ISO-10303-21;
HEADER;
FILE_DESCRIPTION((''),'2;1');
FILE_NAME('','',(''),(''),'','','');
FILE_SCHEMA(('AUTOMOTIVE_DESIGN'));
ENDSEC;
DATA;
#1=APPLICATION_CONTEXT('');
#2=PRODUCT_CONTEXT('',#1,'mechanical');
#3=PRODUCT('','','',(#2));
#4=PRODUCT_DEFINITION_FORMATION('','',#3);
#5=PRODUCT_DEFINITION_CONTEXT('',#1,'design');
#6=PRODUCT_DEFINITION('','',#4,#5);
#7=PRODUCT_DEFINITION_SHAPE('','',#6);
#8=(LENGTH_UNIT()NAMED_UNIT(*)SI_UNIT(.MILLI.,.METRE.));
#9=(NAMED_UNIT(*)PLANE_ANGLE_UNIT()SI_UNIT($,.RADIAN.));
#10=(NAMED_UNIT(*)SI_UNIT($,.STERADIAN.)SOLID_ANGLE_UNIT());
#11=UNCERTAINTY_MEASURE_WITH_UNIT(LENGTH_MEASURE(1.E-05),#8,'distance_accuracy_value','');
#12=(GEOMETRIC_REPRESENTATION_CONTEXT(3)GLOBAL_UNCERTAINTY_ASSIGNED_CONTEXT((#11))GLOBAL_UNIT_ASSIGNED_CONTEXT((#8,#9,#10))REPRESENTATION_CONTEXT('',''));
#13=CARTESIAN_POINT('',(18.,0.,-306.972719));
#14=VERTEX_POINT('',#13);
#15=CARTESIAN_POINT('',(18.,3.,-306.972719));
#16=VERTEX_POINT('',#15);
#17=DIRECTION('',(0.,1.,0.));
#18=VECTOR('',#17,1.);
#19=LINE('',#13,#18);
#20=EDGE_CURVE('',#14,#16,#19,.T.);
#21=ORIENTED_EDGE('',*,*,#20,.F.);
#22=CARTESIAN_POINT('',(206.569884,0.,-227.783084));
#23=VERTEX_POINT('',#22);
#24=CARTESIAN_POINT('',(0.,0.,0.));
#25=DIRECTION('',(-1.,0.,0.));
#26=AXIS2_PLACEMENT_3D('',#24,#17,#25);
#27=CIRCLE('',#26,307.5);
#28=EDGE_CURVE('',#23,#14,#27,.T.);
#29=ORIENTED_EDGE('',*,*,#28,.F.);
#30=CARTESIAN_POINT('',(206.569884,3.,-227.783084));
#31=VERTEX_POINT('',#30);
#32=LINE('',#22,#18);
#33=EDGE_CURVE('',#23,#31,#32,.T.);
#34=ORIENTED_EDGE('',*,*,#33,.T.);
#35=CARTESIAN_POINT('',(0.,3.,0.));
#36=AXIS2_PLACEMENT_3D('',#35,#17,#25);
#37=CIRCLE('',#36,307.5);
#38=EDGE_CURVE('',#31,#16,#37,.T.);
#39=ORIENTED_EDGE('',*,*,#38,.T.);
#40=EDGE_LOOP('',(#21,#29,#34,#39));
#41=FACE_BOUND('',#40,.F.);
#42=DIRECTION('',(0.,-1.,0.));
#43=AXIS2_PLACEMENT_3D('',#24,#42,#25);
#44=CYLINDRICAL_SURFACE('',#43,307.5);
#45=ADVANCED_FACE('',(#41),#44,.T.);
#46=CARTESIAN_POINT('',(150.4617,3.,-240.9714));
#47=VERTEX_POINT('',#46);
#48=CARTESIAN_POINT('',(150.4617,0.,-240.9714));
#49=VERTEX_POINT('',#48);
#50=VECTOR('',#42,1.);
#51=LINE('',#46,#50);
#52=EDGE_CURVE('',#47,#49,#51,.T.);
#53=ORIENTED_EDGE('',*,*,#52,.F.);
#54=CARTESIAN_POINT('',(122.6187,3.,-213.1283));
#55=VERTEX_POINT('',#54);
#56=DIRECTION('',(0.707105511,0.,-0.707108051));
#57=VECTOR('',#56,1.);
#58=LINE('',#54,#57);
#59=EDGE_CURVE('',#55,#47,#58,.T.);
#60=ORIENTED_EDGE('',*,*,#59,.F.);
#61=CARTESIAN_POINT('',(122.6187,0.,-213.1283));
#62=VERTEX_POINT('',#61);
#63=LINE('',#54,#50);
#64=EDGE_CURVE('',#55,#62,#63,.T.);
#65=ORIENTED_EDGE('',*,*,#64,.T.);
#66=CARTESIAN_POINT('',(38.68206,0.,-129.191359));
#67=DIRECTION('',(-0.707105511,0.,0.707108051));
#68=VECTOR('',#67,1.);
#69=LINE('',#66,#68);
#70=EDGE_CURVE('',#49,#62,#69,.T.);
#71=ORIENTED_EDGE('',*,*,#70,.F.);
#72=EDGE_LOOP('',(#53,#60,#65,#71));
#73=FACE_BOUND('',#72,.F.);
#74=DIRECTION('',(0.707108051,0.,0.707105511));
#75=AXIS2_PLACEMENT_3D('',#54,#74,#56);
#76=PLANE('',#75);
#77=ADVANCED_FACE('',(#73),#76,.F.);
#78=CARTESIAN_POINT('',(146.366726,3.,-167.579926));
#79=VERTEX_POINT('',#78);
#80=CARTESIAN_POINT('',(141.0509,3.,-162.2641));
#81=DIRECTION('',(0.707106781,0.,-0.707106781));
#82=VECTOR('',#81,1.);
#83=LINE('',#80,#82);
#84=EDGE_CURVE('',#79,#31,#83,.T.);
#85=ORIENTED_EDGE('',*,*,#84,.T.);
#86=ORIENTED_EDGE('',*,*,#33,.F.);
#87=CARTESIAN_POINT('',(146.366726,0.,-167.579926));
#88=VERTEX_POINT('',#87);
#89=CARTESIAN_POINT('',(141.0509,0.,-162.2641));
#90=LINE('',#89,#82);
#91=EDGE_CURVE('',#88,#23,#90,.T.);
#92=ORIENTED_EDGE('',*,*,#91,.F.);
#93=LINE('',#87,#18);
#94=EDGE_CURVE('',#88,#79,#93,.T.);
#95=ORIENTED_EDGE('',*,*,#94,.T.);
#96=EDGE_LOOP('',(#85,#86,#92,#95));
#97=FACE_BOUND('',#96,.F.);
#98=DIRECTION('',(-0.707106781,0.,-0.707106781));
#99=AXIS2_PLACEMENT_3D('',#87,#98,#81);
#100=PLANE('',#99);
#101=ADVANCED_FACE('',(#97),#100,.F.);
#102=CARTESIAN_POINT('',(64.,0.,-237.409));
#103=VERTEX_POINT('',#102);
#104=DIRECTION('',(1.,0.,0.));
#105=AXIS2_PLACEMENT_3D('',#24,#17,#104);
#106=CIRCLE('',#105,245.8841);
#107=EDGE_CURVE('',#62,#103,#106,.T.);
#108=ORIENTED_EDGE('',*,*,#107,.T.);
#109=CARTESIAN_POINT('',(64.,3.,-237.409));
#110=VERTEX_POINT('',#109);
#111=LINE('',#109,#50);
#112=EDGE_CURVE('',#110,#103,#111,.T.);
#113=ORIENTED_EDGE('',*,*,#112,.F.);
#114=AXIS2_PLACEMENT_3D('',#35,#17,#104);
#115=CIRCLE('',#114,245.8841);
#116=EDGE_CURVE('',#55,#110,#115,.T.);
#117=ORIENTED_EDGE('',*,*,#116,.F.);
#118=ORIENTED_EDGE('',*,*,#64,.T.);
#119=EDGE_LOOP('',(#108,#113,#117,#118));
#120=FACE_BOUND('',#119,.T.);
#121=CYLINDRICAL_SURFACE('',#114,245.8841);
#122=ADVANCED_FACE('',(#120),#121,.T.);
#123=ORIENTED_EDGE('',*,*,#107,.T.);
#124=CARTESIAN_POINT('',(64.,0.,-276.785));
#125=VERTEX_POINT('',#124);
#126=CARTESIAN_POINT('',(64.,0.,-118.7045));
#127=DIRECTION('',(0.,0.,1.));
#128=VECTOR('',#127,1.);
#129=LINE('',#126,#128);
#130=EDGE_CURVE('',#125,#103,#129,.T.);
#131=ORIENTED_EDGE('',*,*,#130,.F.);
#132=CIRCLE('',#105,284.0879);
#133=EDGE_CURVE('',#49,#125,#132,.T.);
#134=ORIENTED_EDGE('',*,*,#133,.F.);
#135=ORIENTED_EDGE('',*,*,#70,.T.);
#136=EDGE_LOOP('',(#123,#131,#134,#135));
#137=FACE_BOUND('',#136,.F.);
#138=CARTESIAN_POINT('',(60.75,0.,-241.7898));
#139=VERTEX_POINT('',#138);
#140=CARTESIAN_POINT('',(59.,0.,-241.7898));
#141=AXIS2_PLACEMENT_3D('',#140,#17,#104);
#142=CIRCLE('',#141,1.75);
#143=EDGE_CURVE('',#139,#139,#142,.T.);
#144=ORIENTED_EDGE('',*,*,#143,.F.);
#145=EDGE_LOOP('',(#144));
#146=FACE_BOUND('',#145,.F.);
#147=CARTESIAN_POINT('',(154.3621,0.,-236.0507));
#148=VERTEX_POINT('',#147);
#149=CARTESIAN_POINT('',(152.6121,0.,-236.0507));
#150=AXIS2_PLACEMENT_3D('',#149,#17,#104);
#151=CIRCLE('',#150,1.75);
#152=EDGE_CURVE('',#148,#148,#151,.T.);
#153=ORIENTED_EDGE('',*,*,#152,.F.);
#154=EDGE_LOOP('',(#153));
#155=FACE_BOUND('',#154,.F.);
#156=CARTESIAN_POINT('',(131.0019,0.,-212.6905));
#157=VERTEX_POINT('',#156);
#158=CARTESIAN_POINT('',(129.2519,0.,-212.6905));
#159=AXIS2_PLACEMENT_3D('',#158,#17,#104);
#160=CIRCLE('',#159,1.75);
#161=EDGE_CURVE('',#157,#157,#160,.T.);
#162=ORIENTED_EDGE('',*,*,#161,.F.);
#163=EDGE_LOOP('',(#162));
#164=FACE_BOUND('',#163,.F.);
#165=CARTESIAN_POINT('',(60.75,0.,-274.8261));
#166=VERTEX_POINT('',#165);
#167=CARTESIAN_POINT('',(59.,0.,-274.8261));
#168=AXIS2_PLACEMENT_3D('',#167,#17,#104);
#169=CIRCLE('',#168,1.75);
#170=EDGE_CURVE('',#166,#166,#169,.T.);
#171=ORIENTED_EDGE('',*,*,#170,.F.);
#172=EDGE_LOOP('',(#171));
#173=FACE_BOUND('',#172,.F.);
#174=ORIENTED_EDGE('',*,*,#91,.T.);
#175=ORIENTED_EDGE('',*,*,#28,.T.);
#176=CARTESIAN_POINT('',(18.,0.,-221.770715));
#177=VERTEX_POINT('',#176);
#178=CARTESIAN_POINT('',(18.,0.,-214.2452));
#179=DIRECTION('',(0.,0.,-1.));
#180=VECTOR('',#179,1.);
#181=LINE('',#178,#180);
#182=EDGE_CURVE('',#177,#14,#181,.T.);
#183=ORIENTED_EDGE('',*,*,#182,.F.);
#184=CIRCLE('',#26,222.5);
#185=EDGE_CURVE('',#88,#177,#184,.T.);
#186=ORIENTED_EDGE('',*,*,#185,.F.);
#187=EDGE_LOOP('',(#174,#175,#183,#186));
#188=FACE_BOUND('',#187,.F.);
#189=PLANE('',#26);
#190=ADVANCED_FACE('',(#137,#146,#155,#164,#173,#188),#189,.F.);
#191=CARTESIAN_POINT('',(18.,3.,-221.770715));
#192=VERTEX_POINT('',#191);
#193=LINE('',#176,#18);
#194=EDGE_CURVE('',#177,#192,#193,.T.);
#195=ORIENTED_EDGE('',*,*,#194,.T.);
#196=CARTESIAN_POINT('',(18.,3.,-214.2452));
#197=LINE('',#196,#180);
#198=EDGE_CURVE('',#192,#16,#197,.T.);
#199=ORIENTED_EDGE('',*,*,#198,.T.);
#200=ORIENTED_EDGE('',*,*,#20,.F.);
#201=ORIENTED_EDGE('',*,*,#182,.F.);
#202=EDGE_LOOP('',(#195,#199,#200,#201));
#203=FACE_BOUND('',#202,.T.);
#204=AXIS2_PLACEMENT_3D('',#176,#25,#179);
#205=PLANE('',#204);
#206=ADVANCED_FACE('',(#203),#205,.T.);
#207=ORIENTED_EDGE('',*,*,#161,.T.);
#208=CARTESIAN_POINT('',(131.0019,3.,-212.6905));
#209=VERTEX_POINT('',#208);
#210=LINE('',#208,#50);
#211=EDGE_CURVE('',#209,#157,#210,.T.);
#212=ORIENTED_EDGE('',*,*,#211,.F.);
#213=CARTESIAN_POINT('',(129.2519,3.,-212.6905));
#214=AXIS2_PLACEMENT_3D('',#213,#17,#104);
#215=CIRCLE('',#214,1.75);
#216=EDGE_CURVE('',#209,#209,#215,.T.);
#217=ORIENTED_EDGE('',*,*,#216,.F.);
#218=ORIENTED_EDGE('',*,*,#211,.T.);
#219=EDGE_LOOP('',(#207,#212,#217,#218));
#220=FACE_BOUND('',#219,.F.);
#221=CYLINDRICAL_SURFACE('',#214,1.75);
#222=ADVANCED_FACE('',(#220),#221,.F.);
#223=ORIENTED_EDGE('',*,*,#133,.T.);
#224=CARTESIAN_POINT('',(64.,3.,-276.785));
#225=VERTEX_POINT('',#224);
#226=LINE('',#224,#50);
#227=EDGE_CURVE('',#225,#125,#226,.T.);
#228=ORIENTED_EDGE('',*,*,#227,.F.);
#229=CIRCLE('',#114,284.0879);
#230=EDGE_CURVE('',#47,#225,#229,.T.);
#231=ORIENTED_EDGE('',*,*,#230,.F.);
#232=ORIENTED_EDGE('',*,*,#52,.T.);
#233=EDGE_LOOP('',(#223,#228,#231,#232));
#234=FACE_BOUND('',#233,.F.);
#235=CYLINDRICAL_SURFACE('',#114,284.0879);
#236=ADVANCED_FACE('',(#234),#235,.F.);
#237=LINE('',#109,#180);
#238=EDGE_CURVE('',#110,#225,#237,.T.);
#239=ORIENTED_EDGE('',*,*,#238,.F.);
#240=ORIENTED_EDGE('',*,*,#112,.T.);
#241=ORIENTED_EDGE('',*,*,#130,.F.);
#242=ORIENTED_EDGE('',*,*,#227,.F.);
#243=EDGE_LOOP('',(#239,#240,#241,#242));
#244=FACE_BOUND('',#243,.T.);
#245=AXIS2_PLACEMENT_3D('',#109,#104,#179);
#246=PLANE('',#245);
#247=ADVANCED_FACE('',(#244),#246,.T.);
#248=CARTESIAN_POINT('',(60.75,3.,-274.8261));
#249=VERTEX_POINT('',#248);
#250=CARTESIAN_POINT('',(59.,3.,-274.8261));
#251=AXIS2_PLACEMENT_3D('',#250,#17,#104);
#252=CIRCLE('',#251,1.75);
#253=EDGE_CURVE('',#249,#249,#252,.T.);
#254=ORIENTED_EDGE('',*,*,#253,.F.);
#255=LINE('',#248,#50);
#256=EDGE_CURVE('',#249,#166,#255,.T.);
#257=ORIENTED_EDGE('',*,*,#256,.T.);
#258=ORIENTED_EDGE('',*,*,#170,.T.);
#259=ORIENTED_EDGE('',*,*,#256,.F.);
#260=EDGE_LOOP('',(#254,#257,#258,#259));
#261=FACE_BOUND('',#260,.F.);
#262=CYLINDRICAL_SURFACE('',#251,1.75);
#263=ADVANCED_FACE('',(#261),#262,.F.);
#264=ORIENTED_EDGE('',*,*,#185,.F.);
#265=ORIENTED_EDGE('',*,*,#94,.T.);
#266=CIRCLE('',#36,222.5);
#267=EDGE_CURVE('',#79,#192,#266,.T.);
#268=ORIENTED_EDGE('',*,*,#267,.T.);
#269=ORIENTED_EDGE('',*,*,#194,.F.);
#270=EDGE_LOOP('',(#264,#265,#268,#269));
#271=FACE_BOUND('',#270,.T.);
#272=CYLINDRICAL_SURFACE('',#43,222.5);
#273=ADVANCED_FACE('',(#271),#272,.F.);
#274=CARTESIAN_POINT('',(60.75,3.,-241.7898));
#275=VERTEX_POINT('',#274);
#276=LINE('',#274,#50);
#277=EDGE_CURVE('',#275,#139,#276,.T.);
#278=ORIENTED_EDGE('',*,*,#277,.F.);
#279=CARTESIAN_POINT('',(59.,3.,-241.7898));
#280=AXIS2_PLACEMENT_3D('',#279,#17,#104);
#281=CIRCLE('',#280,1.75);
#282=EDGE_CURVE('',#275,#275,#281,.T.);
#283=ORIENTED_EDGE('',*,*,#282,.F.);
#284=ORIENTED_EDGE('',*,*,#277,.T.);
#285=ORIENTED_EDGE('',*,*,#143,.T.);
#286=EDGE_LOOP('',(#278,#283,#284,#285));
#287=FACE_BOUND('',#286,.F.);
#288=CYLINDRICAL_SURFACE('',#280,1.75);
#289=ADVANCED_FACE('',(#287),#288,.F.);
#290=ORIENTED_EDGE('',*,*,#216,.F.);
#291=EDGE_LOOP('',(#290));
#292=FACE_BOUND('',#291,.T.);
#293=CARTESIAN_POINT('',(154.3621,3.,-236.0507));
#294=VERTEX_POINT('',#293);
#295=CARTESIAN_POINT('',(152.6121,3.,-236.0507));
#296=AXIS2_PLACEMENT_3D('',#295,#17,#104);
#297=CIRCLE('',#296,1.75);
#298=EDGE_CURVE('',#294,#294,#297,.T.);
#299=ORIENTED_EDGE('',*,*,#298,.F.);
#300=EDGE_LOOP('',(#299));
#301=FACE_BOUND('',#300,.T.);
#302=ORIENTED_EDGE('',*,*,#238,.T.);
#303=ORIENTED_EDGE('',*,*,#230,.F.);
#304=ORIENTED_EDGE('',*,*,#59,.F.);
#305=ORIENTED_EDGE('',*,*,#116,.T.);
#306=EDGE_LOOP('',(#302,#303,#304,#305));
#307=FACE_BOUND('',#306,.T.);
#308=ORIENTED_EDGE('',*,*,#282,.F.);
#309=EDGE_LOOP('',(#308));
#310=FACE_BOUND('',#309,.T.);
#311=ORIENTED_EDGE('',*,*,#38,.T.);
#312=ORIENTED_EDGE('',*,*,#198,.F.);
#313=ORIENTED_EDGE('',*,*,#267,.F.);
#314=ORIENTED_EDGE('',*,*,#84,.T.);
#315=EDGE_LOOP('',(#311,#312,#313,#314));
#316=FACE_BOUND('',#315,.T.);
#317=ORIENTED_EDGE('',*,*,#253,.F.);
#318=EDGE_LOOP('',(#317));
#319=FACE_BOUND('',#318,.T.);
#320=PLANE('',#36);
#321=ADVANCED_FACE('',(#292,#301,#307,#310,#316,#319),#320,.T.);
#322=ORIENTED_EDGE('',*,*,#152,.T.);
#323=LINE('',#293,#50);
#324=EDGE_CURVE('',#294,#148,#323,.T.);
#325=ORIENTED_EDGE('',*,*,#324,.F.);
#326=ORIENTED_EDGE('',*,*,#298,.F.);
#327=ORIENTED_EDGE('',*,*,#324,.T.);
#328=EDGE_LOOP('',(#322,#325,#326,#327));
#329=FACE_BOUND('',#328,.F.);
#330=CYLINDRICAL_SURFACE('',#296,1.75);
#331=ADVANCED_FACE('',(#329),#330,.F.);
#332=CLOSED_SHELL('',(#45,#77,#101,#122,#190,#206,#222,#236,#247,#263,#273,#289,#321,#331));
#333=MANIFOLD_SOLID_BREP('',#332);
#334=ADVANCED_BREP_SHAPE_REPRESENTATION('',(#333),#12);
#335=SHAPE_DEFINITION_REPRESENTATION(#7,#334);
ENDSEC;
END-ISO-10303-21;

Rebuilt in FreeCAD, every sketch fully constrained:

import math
import FreeCAD as App
import Part
import Sketcher
Q = App.Units.Quantity

doc = App.newDocument("Part")
body = doc.addObject("PartDesign::Body", "Body")

sketch1 = body.newObject("Sketcher::SketchObject", "Sketch")
sketch1.AttachmentSupport = (doc.getObject("XZ_Plane"), [""])
sketch1.MapMode = "FlatFace"
sketch1.addGeometry([
    Part.ArcOfCircle(Part.Circle(App.Vector(0, 0, 0), App.Vector(0, 0, 1), 222), math.radians(-85), math.radians(-49)),
    Part.LineSegment(App.Vector(146, -168, 0), App.Vector(207, -228, 0)),
    Part.ArcOfCircle(Part.Circle(App.Vector(0, 0, 0), App.Vector(0, 0, 1), 308), math.radians(-87), math.radians(-48)),
    Part.LineSegment(App.Vector(18, -307, 0), App.Vector(18, -222, 0)),
], False)
sketch1.addConstraint([
    Sketcher.Constraint("Coincident", 0, 2, 1, 1),
    Sketcher.Constraint("Coincident", 1, 2, 2, 2),
    Sketcher.Constraint("Coincident", 2, 1, 3, 1),
    Sketcher.Constraint("Coincident", 3, 2, 0, 1),
    Sketcher.Constraint("Vertical", 3),
    Sketcher.Constraint("Coincident", 0, 3, -1, 1),
    Sketcher.Constraint("Coincident", 2, 3, -1, 1),
    Sketcher.Constraint("Angle", 1, Q("-45 deg")),
    Sketcher.Constraint("Radius", 0, 222.5),
    Sketcher.Constraint("Radius", 2, 307.5),
    Sketcher.Constraint("DistanceX", -1, 1, 2, 1, 18.0),
    Sketcher.Constraint("DistanceY", 0, 2, -1, 1, 167.58),
])
pad1 = body.newObject("PartDesign::Pad", "Pad")
pad1.Profile = sketch1
pad1.Length = 3
pad1.Reversed = True

sketch2 = body.newObject("Sketcher::SketchObject", "Sketch001")
sketch2.AttachmentSupport = (doc.getObject("XZ_Plane"), [""])
sketch2.MapMode = "FlatFace"
sketch2.AttachmentOffset = App.Placement(App.Vector(0, 0, -3), App.Rotation())
sketch2.addGeometry([
    Part.Circle(App.Vector(152.6, -236.1, 0), App.Vector(0, 0, 1), 1.8),
    Part.Circle(App.Vector(129.3, -212.7, 0), App.Vector(0, 0, 1), 1.8),
    Part.Circle(App.Vector(59, -274.8, 0), App.Vector(0, 0, 1), 1.8),
    Part.Circle(App.Vector(59, -241.8, 0), App.Vector(0, 0, 1), 1.8),
], False)
sketch2.addConstraint([
    Sketcher.Constraint("Equal", 0, 1),
    Sketcher.Constraint("Equal", 1, 2),
    Sketcher.Constraint("Equal", 2, 3),
    Sketcher.Constraint("Vertical", 2, 3, 3, 3),
    Sketcher.Constraint("Diameter", 0, 3.5),
    Sketcher.Constraint("DistanceX", -1, 1, 2, 3, 59.0),
    Sketcher.Constraint("DistanceX", -1, 1, 0, 3, 152.612),
    Sketcher.Constraint("DistanceX", -1, 1, 1, 3, 129.252),
    Sketcher.Constraint("DistanceY", 2, 3, -1, 1, 274.826),
    Sketcher.Constraint("DistanceY", 3, 3, 0, 3, 5.739),
    Sketcher.Constraint("DistanceY", 0, 3, -1, 1, 236.0507),
    Sketcher.Constraint("DistanceY", 1, 3, -1, 1, 212.6905),
])
pocket1 = body.newObject("PartDesign::Pocket", "Pocket")
pocket1.Profile = sketch2
pocket1.Type = "UpToFirst"
pocket1.Reversed = True

sketch3 = body.newObject("Sketcher::SketchObject", "Sketch002")
sketch3.AttachmentSupport = (doc.getObject("XZ_Plane"), [""])
sketch3.MapMode = "FlatFace"
sketch3.AttachmentOffset = App.Placement(App.Vector(0, 0, -3), App.Rotation())
sketch3.addGeometry([
    Part.Circle(App.Vector(129.2519, -212.6905, 0), App.Vector(0, 0, 1), 1.75),
    Part.Circle(App.Vector(59, -274.8261, 0), App.Vector(0, 0, 1), 1.75),
    Part.Circle(App.Vector(152.6121, -236.0507, 0), App.Vector(0, 0, 1), 1.75),
    Part.Circle(App.Vector(59, -241.7898, 0), App.Vector(0, 0, 1), 1.75),
    Part.ArcOfCircle(Part.Circle(App.Vector(0, 0, 0), App.Vector(0, 0, 1), 245.8841), math.radians(-74.913018), math.radians(-60.086972)),
    Part.LineSegment(App.Vector(122.6187, -213.1283, 0), App.Vector(150.4617, -240.9714, 0)),
    Part.ArcOfCircle(Part.Circle(App.Vector(0, 0, 0), App.Vector(0, 0, 1), 284.0879), math.radians(-76.980516), math.radians(-58.019488)),
    Part.LineSegment(App.Vector(64, -276.785, 0), App.Vector(64, -237.409, 0)),
], False)
sketch3.addConstraint([
    Sketcher.Constraint("Coincident", 4, 2, 5, 1),
    Sketcher.Constraint("Coincident", 5, 2, 6, 2),
    Sketcher.Constraint("Coincident", 6, 1, 7, 1),
    Sketcher.Constraint("Coincident", 7, 2, 4, 1),
    Sketcher.Constraint("Vertical", 7),
    Sketcher.Constraint("Coincident", 4, 3, -1, 1),
    Sketcher.Constraint("Coincident", 6, 3, -1, 1),
    Sketcher.Constraint("DistanceX", 1, 3, 6, 1, 5.0),
    Sketcher.Constraint("DistanceX", 3, 3, 6, 1, 5.0),
    Sketcher.Constraint("Diameter", 0, 3.5),
    Sketcher.Constraint("Diameter", 1, 3.5),
    Sketcher.Constraint("Diameter", 2, 3.5),
    Sketcher.Constraint("Diameter", 3, 3.5),
    Sketcher.Constraint("DistanceX", -1, 1, 1, 3, 59.0),
    Sketcher.Constraint("Radius", 4, 245.884),
    Sketcher.Constraint("Radius", 6, 284.088),
    Sketcher.Constraint("Distance", 5, 39.376),
    Sketcher.Constraint("DistanceX", -1, 1, 0, 3, 129.252),
    Sketcher.Constraint("DistanceY", 1, 3, -1, 1, 274.826),
    Sketcher.Constraint("DistanceX", -1, 1, 2, 3, 152.612),
    Sketcher.Constraint("DistanceY", 3, 3, 2, 3, 5.739),
    Sketcher.Constraint("DistanceY", 5, 2, 0, 3, 28.281),
    Sketcher.Constraint("DistanceY", 0, 3, -1, 1, 212.6905),
    Sketcher.Constraint("DistanceY", 2, 3, -1, 1, 236.0507),
])
pocket2 = body.newObject("PartDesign::Pocket", "Pocket001")
pocket2.Profile = sketch3
pocket2.Type = "UpToFirst"
pocket2.Reversed = True

doc.recompute()
